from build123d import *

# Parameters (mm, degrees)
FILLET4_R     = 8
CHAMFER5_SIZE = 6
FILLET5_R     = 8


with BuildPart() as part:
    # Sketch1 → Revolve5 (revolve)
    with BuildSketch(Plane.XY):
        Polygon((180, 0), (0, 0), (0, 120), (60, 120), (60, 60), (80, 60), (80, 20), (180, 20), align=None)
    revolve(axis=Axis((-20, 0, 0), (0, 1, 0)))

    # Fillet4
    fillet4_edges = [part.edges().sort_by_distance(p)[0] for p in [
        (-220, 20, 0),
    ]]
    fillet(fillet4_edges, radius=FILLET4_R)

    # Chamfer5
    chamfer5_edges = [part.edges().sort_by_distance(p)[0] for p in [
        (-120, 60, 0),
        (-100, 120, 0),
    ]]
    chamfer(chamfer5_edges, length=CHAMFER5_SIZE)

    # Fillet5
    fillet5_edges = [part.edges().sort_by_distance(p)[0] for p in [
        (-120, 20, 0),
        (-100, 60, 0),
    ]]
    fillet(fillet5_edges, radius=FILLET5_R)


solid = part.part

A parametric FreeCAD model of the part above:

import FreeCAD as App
import Part
import Sketcher
from FreeCAD import Vector
Q = App.Units.Quantity


def edges_at(feature, points):
    """Names of the edges that pass closest to the given points."""
    edges = feature.Shape.Edges
    near = lambda p: min(range(len(edges)), key=lambda i: edges[i].distToShape(Part.Vertex(*p))[0])
    return sorted({f"Edge{near(p) + 1}" for p in points})

doc = App.newDocument("Part")
body = doc.addObject("PartDesign::Body", "Body")

# Sketch on XY plane
sketch1 = doc.addObject("Sketcher::SketchObject", "Sketch")
body.addObject(sketch1)
sketch1.AttachmentSupport = (doc.XY_Plane, [""])
sketch1.MapMode = "FlatFace"
sketch1.addGeometry([
    Part.LineSegment(Vector(0, 0, 0), Vector(180, 0, 0)),  # 0
    Part.LineSegment(Vector(180, 0, 0), Vector(180, 20, 0)),  # 1
    Part.LineSegment(Vector(180, 20, 0), Vector(80, 20, 0)),  # 2
    Part.LineSegment(Vector(80, 20, 0), Vector(80, 60, 0)),  # 3
    Part.LineSegment(Vector(80, 60, 0), Vector(60, 60, 0)),  # 4
    Part.LineSegment(Vector(60, 60, 0), Vector(60, 120, 0)),  # 5
    Part.LineSegment(Vector(60, 120, 0), Vector(0, 120, 0)),  # 6
    Part.LineSegment(Vector(0, 120, 0), Vector(0, 0, 0)),  # 7
], False)
sketch1.addGeometry(Part.LineSegment(Vector(-20, 0, 0), Vector(-20, 120, 0)), True)  # axis
sketch1.addConstraint([
    Sketcher.Constraint("Coincident", 0, 2, 1, 1),
    Sketcher.Constraint("Coincident", 1, 2, 2, 1),
    Sketcher.Constraint("Coincident", 2, 2, 3, 1),
    Sketcher.Constraint("Coincident", 3, 2, 4, 1),
    Sketcher.Constraint("Coincident", 4, 2, 5, 1),
    Sketcher.Constraint("Coincident", 5, 2, 6, 1),
    Sketcher.Constraint("Coincident", 6, 2, 7, 1),
    Sketcher.Constraint("Coincident", 7, 2, 0, 1),
    Sketcher.Constraint("Horizontal", 0),
    Sketcher.Constraint("Vertical", 1),
    Sketcher.Constraint("Horizontal", 2),
    Sketcher.Constraint("Vertical", 3),
    Sketcher.Constraint("Horizontal", 4),
    Sketcher.Constraint("Vertical", 5),
    Sketcher.Constraint("Horizontal", 6),
    Sketcher.Constraint("Vertical", 7),
    Sketcher.Constraint("Vertical", 8),
    Sketcher.Constraint("Coincident", 7, 2, -1, 1),
    Sketcher.Constraint("PointOnObject", 8, 1, -1),
    Sketcher.Constraint("Horizontal", 6, 2, 8, 2),
    Sketcher.Constraint("Equal", 4, 1),
    Sketcher.Constraint("Equal", 6, 5),
    Sketcher.Constraint("DistanceX", 0, 1, 0, 2, Q("180 mm")),
    Sketcher.Constraint("DistanceX", 2, 2, 2, 1, Q("100 mm")),
    Sketcher.Constraint("DistanceX", 4, 2, 4, 1, Q("20 mm")),
    Sketcher.Constraint("DistanceY", 3, 1, 3, 2, Q("40 mm")),
    Sketcher.Constraint("DistanceX", 8, 1, -1, 1, Q("20 mm")),
])
revolution = doc.addObject("PartDesign::Revolution", "Revolution")
body.addObject(revolution)
revolution.Profile = sketch1
revolution.ReferenceAxis = (sketch1, ["Axis0"])
revolution.Angle = 360
doc.recompute()

fillet = doc.addObject("PartDesign::Fillet", "Fillet")
body.addObject(fillet)
fillet.Base = (revolution, edges_at(revolution, [(-220, 20, 0)]))
fillet.Radius = 8
doc.recompute()

chamfer = doc.addObject("PartDesign::Chamfer", "Chamfer")
body.addObject(chamfer)
chamfer.Base = (fillet, edges_at(fillet, [(-120, 60, 0), (-100, 120, 0)]))
chamfer.Size = 6
doc.recompute()

fillet2 = doc.addObject("PartDesign::Fillet", "Fillet001")
body.addObject(fillet2)
fillet2.Base = (chamfer, edges_at(chamfer, [(-120, 20, 0), (-100, 60, 0)]))
fillet2.Radius = 8

doc.recompute()
